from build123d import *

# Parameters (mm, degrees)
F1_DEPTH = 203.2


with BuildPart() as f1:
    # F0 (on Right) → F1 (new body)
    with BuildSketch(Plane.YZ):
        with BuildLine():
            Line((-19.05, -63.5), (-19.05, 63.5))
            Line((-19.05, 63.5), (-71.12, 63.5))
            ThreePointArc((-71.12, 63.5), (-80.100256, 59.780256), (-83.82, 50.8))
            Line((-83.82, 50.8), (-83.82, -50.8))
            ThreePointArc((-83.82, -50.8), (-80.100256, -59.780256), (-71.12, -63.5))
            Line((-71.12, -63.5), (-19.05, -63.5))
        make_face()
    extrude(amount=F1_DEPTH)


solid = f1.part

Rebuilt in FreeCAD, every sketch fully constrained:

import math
import FreeCAD as App
import Part
import Sketcher

V = App.Vector
Q = App.Units.Quantity

doc = App.newDocument("Part")
body = doc.addObject("PartDesign::Body", "Body")

sketch1 = body.newObject("Sketcher::SketchObject", "Sketch")
sketch1.AttachmentSupport = (doc.getObject("YZ_Plane"), [""])
sketch1.MapMode = "FlatFace"
sketch1.addGeometry([
    Part.LineSegment(V(-19, -64, 0), V(-19, 64, 0)),
    Part.LineSegment(V(-19, 64, 0), V(-71, 64, 0)),
    Part.ArcOfCircle(Part.Circle(V(-71, 51, 0), V(0, 0, 1), 13), math.radians(90), math.radians(180)),
    Part.LineSegment(V(-84, 51, 0), V(-84, -51, 0)),
    Part.ArcOfCircle(Part.Circle(V(-71, -51, 0), V(0, 0, 1), 13), math.radians(-180), math.radians(-90)),
    Part.LineSegment(V(-71, -64, 0), V(-19, -64, 0)),
], False)
sketch1.addConstraint([
    Sketcher.Constraint("Coincident", 0, 2, 1, 1),
    Sketcher.Constraint("Tangent", 1, 2, 2, 1),
    Sketcher.Constraint("Tangent", 2, 2, 3, 1),
    Sketcher.Constraint("Tangent", 3, 2, 4, 1),
    Sketcher.Constraint("Tangent", 4, 2, 5, 1),
    Sketcher.Constraint("Coincident", 5, 2, 0, 1),
    Sketcher.Constraint("Vertical", 0),
    Sketcher.Constraint("Horizontal", 1),
    Sketcher.Constraint("Vertical", 3),
    Sketcher.Constraint("Horizontal", 5),
    Sketcher.Constraint("Equal", 2, 4),
    Sketcher.Constraint("Radius", 2, Q("0.5 in")),
    Sketcher.Constraint("DistanceY", 0, 1, 0, 2, Q("5 in")),
    Sketcher.Constraint("DistanceY", -1, 1, 2, 3, Q("2 in")),
    Sketcher.Constraint("DistanceX", 1, 2, 1, 1, Q("2.05 in")),
    Sketcher.Constraint("DistanceX", 2, 3, -1, 1, Q("2.8 in")),
])
pad1 = body.newObject("PartDesign::Pad", "Pad")
pad1.Profile = sketch1
pad1.Length = Q("8 in")

doc.recompute()
